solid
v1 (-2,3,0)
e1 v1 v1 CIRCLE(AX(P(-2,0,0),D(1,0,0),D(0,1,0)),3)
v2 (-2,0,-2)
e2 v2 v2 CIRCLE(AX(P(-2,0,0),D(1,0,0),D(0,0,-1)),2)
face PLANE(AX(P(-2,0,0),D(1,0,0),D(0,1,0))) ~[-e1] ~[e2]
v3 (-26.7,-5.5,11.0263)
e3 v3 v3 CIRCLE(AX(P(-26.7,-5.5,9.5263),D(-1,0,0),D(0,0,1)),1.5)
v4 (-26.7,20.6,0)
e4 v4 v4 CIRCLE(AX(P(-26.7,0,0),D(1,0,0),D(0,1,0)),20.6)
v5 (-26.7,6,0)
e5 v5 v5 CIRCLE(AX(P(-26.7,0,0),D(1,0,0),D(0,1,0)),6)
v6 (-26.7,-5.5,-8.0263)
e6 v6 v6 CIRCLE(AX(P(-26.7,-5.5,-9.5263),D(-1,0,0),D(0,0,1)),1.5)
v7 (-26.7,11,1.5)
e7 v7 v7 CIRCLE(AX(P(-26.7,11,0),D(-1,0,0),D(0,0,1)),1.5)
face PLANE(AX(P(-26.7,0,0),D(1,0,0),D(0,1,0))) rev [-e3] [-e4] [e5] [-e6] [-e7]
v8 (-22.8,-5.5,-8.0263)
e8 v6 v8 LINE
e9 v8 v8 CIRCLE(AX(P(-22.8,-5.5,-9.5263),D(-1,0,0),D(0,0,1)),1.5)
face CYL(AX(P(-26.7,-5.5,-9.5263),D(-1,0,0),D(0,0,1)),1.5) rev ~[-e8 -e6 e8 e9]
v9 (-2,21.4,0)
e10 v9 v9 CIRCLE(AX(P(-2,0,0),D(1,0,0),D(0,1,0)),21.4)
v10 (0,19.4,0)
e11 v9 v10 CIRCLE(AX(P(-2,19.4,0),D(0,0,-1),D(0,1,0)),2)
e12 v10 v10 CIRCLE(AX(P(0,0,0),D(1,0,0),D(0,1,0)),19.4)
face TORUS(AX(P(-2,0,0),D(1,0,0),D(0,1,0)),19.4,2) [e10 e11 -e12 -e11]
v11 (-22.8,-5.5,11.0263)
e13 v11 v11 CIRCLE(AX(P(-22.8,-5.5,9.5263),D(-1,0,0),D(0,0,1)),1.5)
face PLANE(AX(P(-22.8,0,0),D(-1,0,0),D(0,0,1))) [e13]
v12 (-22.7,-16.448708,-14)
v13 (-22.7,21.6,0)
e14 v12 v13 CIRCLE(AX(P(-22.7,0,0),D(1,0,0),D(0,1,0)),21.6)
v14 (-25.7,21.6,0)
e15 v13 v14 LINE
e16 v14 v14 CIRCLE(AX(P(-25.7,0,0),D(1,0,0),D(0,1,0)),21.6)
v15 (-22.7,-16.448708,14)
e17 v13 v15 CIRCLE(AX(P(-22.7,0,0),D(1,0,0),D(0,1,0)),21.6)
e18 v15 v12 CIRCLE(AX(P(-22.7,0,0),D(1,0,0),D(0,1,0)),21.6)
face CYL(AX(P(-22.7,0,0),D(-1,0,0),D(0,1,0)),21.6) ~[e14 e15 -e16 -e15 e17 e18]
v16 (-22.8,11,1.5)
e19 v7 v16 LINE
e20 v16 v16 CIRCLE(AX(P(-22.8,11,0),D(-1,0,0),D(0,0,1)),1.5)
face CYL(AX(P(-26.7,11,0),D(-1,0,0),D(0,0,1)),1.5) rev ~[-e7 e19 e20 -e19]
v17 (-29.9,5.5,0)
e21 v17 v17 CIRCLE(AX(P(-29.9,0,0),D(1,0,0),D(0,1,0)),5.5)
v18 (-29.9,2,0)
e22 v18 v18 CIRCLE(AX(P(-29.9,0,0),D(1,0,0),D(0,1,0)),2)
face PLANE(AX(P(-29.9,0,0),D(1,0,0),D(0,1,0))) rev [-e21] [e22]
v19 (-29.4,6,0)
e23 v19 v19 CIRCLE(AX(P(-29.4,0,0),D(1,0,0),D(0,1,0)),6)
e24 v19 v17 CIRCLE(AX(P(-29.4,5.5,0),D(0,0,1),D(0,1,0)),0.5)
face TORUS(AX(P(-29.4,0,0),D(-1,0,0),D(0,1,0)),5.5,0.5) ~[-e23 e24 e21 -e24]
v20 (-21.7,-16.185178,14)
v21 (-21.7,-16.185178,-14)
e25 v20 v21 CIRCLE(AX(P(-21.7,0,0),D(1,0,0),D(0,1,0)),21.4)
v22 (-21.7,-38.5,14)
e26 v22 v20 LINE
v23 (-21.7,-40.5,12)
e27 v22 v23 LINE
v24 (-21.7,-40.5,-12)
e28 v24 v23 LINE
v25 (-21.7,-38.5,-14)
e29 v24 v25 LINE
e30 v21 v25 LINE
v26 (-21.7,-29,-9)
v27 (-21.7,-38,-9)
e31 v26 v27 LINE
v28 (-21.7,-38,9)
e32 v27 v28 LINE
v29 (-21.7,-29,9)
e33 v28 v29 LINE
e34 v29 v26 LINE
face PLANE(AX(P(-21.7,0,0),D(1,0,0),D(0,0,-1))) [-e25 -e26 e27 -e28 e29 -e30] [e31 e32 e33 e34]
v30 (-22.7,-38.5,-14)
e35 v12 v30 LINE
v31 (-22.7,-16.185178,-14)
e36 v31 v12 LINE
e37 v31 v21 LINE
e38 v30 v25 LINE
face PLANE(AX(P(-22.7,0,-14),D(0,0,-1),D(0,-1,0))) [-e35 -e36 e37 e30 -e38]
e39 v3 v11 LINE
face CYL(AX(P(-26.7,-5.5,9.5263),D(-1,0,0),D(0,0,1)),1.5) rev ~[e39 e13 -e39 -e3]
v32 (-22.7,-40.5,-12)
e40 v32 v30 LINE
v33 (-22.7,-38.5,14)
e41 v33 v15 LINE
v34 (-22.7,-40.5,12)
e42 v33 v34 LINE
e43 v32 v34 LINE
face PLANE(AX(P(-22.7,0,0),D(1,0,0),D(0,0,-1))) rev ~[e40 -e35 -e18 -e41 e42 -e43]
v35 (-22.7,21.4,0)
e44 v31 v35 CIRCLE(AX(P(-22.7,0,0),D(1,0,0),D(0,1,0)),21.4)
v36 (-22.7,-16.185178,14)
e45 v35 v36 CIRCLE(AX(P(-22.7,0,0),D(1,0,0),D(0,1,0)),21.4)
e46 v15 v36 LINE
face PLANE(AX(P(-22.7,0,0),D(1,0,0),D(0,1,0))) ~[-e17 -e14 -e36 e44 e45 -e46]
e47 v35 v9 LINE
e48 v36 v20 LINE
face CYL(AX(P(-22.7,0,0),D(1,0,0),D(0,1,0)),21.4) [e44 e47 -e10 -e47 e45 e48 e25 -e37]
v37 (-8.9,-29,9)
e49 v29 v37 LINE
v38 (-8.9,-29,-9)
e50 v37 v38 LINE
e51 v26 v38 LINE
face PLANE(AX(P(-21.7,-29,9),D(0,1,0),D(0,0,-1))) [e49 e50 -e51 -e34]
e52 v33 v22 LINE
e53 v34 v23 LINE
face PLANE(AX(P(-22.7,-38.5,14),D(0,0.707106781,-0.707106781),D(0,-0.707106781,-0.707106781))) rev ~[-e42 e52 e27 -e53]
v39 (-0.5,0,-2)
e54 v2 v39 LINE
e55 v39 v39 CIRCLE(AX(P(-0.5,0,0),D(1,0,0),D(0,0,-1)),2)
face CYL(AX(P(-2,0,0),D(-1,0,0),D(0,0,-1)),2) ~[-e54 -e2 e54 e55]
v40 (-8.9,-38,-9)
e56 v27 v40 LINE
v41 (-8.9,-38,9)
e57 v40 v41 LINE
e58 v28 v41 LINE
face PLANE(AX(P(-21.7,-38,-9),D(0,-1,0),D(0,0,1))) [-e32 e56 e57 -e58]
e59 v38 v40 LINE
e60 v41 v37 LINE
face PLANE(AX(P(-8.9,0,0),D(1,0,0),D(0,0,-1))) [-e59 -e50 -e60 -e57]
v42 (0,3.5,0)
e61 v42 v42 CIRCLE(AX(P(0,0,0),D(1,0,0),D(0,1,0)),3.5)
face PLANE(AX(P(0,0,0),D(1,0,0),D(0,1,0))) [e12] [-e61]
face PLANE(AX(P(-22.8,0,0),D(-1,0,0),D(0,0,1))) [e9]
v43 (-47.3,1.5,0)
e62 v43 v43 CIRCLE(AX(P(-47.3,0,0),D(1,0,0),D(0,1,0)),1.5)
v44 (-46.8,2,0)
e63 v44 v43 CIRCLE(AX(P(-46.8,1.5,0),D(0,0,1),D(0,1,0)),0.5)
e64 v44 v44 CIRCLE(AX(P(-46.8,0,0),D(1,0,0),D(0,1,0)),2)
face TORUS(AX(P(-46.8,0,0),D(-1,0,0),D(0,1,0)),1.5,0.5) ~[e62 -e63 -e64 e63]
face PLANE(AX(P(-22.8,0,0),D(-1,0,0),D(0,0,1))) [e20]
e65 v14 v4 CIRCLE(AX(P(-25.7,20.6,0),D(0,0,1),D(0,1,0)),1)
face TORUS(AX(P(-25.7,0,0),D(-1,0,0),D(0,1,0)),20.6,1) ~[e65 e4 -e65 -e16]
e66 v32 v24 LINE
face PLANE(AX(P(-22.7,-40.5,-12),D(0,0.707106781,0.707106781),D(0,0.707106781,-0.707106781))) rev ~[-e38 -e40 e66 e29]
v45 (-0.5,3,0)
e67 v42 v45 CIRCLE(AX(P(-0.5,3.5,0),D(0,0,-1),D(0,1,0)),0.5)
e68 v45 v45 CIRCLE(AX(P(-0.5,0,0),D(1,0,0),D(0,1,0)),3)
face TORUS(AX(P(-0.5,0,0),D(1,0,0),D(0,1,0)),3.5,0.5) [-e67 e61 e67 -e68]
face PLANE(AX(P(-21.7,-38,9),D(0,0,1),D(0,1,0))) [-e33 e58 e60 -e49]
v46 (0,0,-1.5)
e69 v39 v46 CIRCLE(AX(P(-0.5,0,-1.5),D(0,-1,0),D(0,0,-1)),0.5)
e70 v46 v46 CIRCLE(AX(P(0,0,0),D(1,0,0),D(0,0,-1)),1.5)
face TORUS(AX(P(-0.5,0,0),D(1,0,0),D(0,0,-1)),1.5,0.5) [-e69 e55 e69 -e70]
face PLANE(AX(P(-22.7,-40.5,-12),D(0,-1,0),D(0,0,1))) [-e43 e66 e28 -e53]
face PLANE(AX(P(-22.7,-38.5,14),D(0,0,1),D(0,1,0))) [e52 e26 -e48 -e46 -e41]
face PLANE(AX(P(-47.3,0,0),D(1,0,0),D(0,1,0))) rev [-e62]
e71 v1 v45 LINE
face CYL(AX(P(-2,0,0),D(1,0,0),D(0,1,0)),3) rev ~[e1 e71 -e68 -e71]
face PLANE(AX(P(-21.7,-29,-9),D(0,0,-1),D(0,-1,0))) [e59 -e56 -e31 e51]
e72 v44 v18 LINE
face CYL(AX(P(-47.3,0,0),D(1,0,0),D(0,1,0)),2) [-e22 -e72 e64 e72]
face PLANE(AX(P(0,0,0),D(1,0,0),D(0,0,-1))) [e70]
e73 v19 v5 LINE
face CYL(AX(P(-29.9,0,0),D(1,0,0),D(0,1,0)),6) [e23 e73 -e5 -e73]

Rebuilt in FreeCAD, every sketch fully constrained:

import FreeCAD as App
import Part
import Sketcher


def edges_at(feature, points):
    """Names of the edges that pass closest to the given points."""
    edges = feature.Shape.Edges
    near = lambda p: min(range(len(edges)), key=lambda i: edges[i].distToShape(Part.Vertex(*p))[0])
    return sorted({f"Edge{near(p) + 1}" for p in points})


def add_polygon(sketch, points):
    """Adds a closed chain of lines whose ends are joined by coincident constraints."""
    first, n = sketch.GeometryCount, len(points)
    for a, b in zip(points, points[1:] + points[:1]):
        sketch.addGeometry(Part.LineSegment(App.Vector(*a, 0), App.Vector(*b, 0)), False)
    for i in range(n):
        sketch.addConstraint(Sketcher.Constraint("Coincident", first + i, 2, first + (i + 1) % n, 1))

doc = App.newDocument("Part")
body = doc.addObject("PartDesign::Body", "Body")

# Sketch on XY plane
sketch1 = body.newObject("Sketcher::SketchObject", "Sketch")
sketch1.AttachmentSupport = (doc.getObject("XY_Plane"), [""])
sketch1.MapMode = "FlatFace"
add_polygon(sketch1, [(-2, 0), (-2, 3), (0, 3), (0, 21.4), (-22.7, 21.4), (-22.7, 21.6), (-26.7, 21.6), (-26.7, 6), (-29.9, 6), (-29.9, 2), (-47.3, 2), (-47.3, 0)])  # lines 0-11
sketch1.addConstraint(Sketcher.Constraint("Vertical", 0))
sketch1.addConstraint(Sketcher.Constraint("Horizontal", 1))
sketch1.addConstraint(Sketcher.Constraint("Vertical", 2))
sketch1.addConstraint(Sketcher.Constraint("Horizontal", 3))
sketch1.addConstraint(Sketcher.Constraint("Vertical", 4))
sketch1.addConstraint(Sketcher.Constraint("Horizontal", 5))
sketch1.addConstraint(Sketcher.Constraint("Vertical", 6))
sketch1.addConstraint(Sketcher.Constraint("Horizontal", 7))
sketch1.addConstraint(Sketcher.Constraint("Vertical", 8))
sketch1.addConstraint(Sketcher.Constraint("Horizontal", 9))
sketch1.addConstraint(Sketcher.Constraint("Vertical", 10))
sketch1.addConstraint(Sketcher.Constraint("Horizontal", 11))
sketch1.addConstraint(Sketcher.Constraint("PointOnObject", 1, 2, -2))
sketch1.addConstraint(Sketcher.Constraint("PointOnObject", 10, 2, -1))
sketch1.addConstraint(Sketcher.Constraint("Equal", 5, 8))
sketch1.addConstraint(Sketcher.Constraint("Equal", 1, 10))
sketch1.addConstraint(Sketcher.Constraint("DistanceX", 1, 1, 1, 2, 2.0))
sketch1.addConstraint(Sketcher.Constraint("DistanceX", 5, 2, 5, 1, 4.0))
sketch1.addConstraint(Sketcher.Constraint("DistanceY", 0, 1, 0, 2, 3.0))
sketch1.addConstraint(Sketcher.Constraint("DistanceX", 7, 2, 7, 1, 3.2))
sketch1.addConstraint(Sketcher.Constraint("DistanceX", 9, 2, 9, 1, 17.4))
sketch1.addConstraint(Sketcher.Constraint("DistanceY", 4, 1, 4, 2, 0.2))
sketch1.addConstraint(Sketcher.Constraint("DistanceY", -1, 1, 2, 2, 21.4))
sketch1.addConstraint(Sketcher.Constraint("DistanceX", 5, 2, -1, 1, 26.7))
revolution = body.newObject("PartDesign::Revolution", "Revolution")
revolution.Profile = sketch1
revolution.ReferenceAxis = (sketch1, ["H_Axis"])
revolution.Angle = 360

# Sketch on YZ plane
sketch2 = body.newObject("Sketcher::SketchObject", "Sketch001")
sketch2.AttachmentSupport = (doc.getObject("YZ_Plane"), [""])
sketch2.MapMode = "FlatFace"
sketch2.AttachmentOffset = App.Placement(App.Vector(0, 0, -26.7), App.Rotation())
sketch2.addGeometry(Part.Circle(App.Vector(11, 0, 0), App.Vector(0, 0, 1), 1.5), False)
sketch2.addGeometry(Part.Circle(App.Vector(-5.5, -9.5, 0), App.Vector(0, 0, 1), 1.5), False)
sketch2.addGeometry(Part.Circle(App.Vector(-5.5, 9.5, 0), App.Vector(0, 0, 1), 1.5), False)
sketch2.addConstraint(Sketcher.Constraint("Equal", 0, 1))
sketch2.addConstraint(Sketcher.Constraint("Equal", 1, 2))
sketch2.addConstraint(Sketcher.Constraint("Symmetric", 1, 3, 2, 3, -1))
sketch2.addConstraint(Sketcher.Constraint("PointOnObject", 0, 3, -1))
sketch2.addConstraint(Sketcher.Constraint("Diameter", 0, 3.0))
sketch2.addConstraint(Sketcher.Constraint("DistanceX", -1, 1, 0, 3, 11.0))
sketch2.addConstraint(Sketcher.Constraint("DistanceX", 1, 3, -1, 1, 5.5))
sketch2.addConstraint(Sketcher.Constraint("DistanceY", 1, 3, -1, 1, 9.5263))
pocket1 = body.newObject("PartDesign::Pocket", "Pocket")
pocket1.Profile = sketch2
pocket1.Length = 3.9
pocket1.Reversed = True

# Sketch on YZ plane
sketch3 = body.newObject("Sketcher::SketchObject", "Sketch002")
sketch3.AttachmentSupport = (doc.getObject("YZ_Plane"), [""])
sketch3.MapMode = "FlatFace"
sketch3.AttachmentOffset = App.Placement(App.Vector(0, 0, -22.7), App.Rotation())
add_polygon(sketch3, [(0, -14), (0, 14), (-38.5, 14), (-40.5, 12), (-40.5, -12), (-38.5, -14)])  # lines 0-5
sketch3.addConstraint(Sketcher.Constraint("Vertical", 0))
sketch3.addConstraint(Sketcher.Constraint("Horizontal", 1))
sketch3.addConstraint(Sketcher.Constraint("Vertical", 3))
sketch3.addConstraint(Sketcher.Constraint("Horizontal", 5))
sketch3.addConstraint(Sketcher.Constraint("Symmetric", 0, 2, 5, 2, -1, 1))
sketch3.addConstraint(Sketcher.Constraint("Perpendicular", 2, 4))
sketch3.addConstraint(Sketcher.Constraint("Vertical", 1, 2, 4, 2))
sketch3.addConstraint(Sketcher.Constraint("Equal", 2, 4))
sketch3.addConstraint(Sketcher.Constraint("DistanceY", 0, 1, 0, 2, 28.0))
sketch3.addConstraint(Sketcher.Constraint("DistanceX", 2, 2, 1, 2, 2.0))
sketch3.addConstraint(Sketcher.Constraint("DistanceX", 2, 2, -1, 1, 40.5))
pad1 = body.newObject("PartDesign::Pad", "Pad")
pad1.Profile = sketch3
pad1.Length = 1

# Sketch on YZ plane
sketch4 = body.newObject("Sketcher::SketchObject", "Sketch003")
sketch4.AttachmentSupport = (doc.getObject("YZ_Plane"), [""])
sketch4.MapMode = "FlatFace"
sketch4.AttachmentOffset = App.Placement(App.Vector(0, 0, -21.7), App.Rotation())
add_polygon(sketch4, [(-29, -9), (-29, 9), (-38, 9), (-38, -9)])  # lines 0-3
sketch4.addConstraint(Sketcher.Constraint("Vertical", 0))
sketch4.addConstraint(Sketcher.Constraint("Horizontal", 1))
sketch4.addConstraint(Sketcher.Constraint("Vertical", 2))
sketch4.addConstraint(Sketcher.Constraint("Horizontal", 3))
sketch4.addConstraint(Sketcher.Constraint("DistanceX", 1, 2, 1, 1, 9.0))
sketch4.addConstraint(Sketcher.Constraint("DistanceY", 0, 1, 0, 2, 18.0))
sketch4.addConstraint(Sketcher.Constraint("DistanceY", -1, 1, 0, 2, 9.0))
sketch4.addConstraint(Sketcher.Constraint("DistanceX", 0, 2, -1, 1, 29.0))
pad2 = body.newObject("PartDesign::Pad", "Pad001")
pad2.Profile = sketch4
pad2.Length = 12.8

# Sketch on YZ plane
sketch5 = body.newObject("Sketcher::SketchObject", "Sketch004")
sketch5.AttachmentSupport = (doc.getObject("YZ_Plane"), [""])
sketch5.MapMode = "FlatFace"
sketch5.AttachmentOffset = App.Placement(App.Vector(0, 0, -2), App.Rotation())
sketch5.addGeometry(Part.Circle(App.Vector(0, 0, 0), App.Vector(0, 0, 1), 2), False)
sketch5.addConstraint(Sketcher.Constraint("Coincident", 0, 3, -1, 1))
sketch5.addConstraint(Sketcher.Constraint("Diameter", 0, 4.0))
pad3 = body.newObject("PartDesign::Pad", "Pad002")
pad3.Profile = sketch5
pad3.Length = 2
doc.recompute()

fillet = body.newObject("PartDesign::Fillet", "Fillet")
fillet.Base = (pad3, edges_at(pad3, [
    (0, 0, 2),
    (0, -3, 0),
    (-29.9, -6, 0),
    (-47.3, -2, 0),
]))
fillet.Radius = 0.5
doc.recompute()

fillet2 = body.newObject("PartDesign::Fillet", "Fillet001")
fillet2.Base = (fillet, edges_at(fillet, [(-26.7, -21.6, 0)]))
fillet2.Radius = 1
doc.recompute()

fillet3 = body.newObject("PartDesign::Fillet", "Fillet002")
fillet3.Base = (fillet2, edges_at(fillet2, [(0, -21.4, 0)]))
fillet3.Radius = 2

doc.recompute()
